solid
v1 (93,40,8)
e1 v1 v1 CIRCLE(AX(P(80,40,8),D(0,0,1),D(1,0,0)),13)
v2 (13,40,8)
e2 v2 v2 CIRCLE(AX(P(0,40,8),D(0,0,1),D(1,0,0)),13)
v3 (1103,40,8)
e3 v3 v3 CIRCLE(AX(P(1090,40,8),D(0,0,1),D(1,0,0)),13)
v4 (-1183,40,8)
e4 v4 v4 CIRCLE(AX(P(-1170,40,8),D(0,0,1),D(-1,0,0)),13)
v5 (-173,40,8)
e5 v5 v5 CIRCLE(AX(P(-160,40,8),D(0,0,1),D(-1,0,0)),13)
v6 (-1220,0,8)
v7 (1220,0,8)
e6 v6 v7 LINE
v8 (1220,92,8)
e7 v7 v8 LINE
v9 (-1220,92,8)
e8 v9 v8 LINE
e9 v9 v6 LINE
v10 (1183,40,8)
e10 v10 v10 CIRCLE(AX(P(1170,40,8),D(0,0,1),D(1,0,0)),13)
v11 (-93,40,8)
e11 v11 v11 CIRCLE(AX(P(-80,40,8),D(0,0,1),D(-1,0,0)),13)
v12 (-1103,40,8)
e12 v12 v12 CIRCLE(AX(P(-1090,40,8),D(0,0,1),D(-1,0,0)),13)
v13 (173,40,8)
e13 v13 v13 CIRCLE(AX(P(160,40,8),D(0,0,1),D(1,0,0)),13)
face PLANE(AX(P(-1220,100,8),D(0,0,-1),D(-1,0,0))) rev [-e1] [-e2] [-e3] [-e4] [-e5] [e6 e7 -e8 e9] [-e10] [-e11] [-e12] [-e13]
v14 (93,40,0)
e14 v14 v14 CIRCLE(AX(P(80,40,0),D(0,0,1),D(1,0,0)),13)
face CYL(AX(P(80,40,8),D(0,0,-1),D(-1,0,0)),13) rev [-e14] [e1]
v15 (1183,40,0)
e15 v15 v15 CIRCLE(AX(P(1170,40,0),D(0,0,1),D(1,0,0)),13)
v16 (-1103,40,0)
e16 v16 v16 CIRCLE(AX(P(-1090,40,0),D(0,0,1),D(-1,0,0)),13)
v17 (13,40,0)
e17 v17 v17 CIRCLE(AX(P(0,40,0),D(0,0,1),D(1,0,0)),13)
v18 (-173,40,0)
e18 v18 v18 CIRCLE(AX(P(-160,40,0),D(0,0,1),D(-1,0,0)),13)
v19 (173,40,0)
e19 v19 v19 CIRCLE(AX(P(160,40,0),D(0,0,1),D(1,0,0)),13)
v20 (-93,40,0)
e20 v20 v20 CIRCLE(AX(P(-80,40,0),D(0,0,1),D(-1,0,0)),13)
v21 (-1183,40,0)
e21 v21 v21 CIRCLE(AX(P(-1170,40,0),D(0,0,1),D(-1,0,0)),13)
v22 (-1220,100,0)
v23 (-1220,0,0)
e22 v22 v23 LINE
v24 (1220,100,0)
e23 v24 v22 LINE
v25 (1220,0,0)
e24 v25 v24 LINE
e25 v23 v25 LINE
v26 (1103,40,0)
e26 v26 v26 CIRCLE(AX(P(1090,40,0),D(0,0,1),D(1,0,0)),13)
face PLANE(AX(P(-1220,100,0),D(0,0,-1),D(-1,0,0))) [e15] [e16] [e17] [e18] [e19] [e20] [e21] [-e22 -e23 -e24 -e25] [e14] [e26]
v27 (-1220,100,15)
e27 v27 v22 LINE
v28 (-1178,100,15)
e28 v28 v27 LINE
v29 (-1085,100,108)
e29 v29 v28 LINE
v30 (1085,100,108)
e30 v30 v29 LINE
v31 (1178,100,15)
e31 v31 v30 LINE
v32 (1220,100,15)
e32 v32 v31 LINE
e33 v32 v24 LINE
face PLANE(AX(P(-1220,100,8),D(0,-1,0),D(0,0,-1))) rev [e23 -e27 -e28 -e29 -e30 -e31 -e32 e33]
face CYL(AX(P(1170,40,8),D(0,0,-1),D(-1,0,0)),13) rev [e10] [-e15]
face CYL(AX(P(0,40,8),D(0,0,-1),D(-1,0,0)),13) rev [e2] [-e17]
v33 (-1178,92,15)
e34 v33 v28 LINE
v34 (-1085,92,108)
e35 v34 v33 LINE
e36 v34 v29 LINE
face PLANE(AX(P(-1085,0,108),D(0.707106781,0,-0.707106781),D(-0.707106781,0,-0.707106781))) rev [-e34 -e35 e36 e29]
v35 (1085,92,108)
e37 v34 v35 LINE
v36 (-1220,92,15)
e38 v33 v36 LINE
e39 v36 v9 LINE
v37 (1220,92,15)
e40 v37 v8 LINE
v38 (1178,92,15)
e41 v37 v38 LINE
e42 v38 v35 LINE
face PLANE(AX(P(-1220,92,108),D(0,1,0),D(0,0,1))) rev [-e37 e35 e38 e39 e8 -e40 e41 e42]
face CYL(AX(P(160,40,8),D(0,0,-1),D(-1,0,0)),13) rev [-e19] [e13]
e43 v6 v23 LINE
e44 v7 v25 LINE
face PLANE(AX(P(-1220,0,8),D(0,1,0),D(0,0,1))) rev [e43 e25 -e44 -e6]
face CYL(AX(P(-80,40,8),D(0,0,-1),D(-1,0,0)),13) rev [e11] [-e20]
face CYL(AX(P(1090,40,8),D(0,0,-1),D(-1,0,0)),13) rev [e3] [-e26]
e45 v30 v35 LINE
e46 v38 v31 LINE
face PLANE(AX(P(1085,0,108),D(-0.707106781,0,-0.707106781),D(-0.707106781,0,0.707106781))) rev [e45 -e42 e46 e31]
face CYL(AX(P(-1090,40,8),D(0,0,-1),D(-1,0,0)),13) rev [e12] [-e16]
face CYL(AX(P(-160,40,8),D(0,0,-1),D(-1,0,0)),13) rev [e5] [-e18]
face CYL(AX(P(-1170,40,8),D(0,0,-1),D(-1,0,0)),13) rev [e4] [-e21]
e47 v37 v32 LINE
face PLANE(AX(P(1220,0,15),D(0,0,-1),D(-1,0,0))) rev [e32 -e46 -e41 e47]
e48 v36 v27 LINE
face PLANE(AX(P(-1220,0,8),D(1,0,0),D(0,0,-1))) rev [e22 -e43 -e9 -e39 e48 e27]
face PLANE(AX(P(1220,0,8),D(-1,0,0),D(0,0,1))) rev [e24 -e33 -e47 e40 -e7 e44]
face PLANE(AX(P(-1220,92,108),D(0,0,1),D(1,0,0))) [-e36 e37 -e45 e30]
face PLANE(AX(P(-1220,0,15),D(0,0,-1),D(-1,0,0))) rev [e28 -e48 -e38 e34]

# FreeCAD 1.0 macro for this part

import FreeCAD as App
import Part
import Sketcher

V = App.Vector

doc = App.newDocument("Part")
params = doc.addObject("Spreadsheet::Sheet", "Params")
for row, (alias, value) in enumerate([
    ("sketch1_diameter", "26 mm"),
    ("sketch1_width", "2440 mm"),
    ("sketch1_height", "100 mm"),
    ("pad1_length", "8 mm"),
    ("sketch2_width", "2440 mm"),
    ("sketch2_height", "8 mm"),
    ("pad2_length", "100 mm"),
    ("sketch3_width", "135 mm"),
    ("sketch3_width2", "42 mm"),
], start=1):
    params.set(f"A{row}", alias)
    params.set(f"B{row}", "=" + value)
    params.setAlias(f"B{row}", alias)

body = doc.addObject("PartDesign::Body", "Body")

# Sketch on XY plane
sketch1 = doc.addObject("Sketcher::SketchObject", "Sketch")
body.addObject(sketch1)
sketch1.AttachmentSupport = (doc.XY_Plane, [""])
sketch1.MapMode = "FlatFace"
sketch1.addGeometry([
    Part.LineSegment(V(-1220, 100, 0), V(-1220, 0, 0)),  # 0
    Part.LineSegment(V(-1220, 0, 0), V(1220, 0, 0)),  # 1
    Part.LineSegment(V(1220, 0, 0), V(1220, 100, 0)),  # 2
    Part.LineSegment(V(1220, 100, 0), V(-1220, 100, 0)),  # 3
    Part.Circle(V(-1170, 40, 0), V(0, 0, 1), 13),  # 4
    Part.Circle(V(-1090, 40, 0), V(0, 0, 1), 13),  # 5
    Part.Circle(V(-160, 40, 0), V(0, 0, 1), 13),  # 6
    Part.Circle(V(-80, 40, 0), V(0, 0, 1), 13),  # 7
    Part.Circle(V(0, 40, 0), V(0, 0, 1), 13),  # 8
    Part.Circle(V(80, 40, 0), V(0, 0, 1), 13),  # 9
    Part.Circle(V(160, 40, 0), V(0, 0, 1), 13),  # 10
    Part.Circle(V(1090, 40, 0), V(0, 0, 1), 13),  # 11
    Part.Circle(V(1170, 40, 0), V(0, 0, 1), 13),  # 12
], False)
sketch1.addConstraint([
    Sketcher.Constraint("Coincident", 0, 2, 1, 1),
    Sketcher.Constraint("Coincident", 1, 2, 2, 1),
    Sketcher.Constraint("Coincident", 2, 2, 3, 1),
    Sketcher.Constraint("Coincident", 3, 2, 0, 1),
    Sketcher.Constraint("Vertical", 0),
    Sketcher.Constraint("Horizontal", 1),
    Sketcher.Constraint("Vertical", 2),
    Sketcher.Constraint("Horizontal", 3),
    Sketcher.Constraint("Equal", 4, 5),
    Sketcher.Constraint("Equal", 5, 6),
    Sketcher.Constraint("Equal", 6, 7),
    Sketcher.Constraint("Equal", 7, 8),
    Sketcher.Constraint("Equal", 8, 9),
    Sketcher.Constraint("Equal", 9, 10),
    Sketcher.Constraint("Equal", 10, 11),
    Sketcher.Constraint("Equal", 11, 12),
    Sketcher.Constraint("Symmetric", 0, 2, 1, 2, -1, 1),
    Sketcher.Constraint("Symmetric", 7, 3, 9, 3, -2),
    Sketcher.Constraint("Symmetric", 6, 3, 10, 3, -2),
    Sketcher.Constraint("Symmetric", 5, 3, 11, 3, -2),
    Sketcher.Constraint("Symmetric", 4, 3, 12, 3, -2),
    Sketcher.Constraint("PointOnObject", 8, 3, -2),
    Sketcher.Constraint("Horizontal", 4, 3, 5, 3),
    Sketcher.Constraint("Horizontal", 5, 3, 6, 3),
    Sketcher.Constraint("Horizontal", 6, 3, 7, 3),
    Sketcher.Constraint("Horizontal", 7, 3, 8, 3),
    Sketcher.Constraint("Diameter", 4, 26.0),
    Sketcher.Constraint("DistanceX", 1, 1, 1, 2, 2440.0),
    Sketcher.Constraint("DistanceY", 0, 2, 0, 1, 100.0),
    Sketcher.Constraint("DistanceX", 4, 3, -1, 1, 1170.0),
    Sketcher.Constraint("DistanceY", -1, 1, 4, 3, 40.0),
    Sketcher.Constraint("DistanceX", 5, 3, -1, 1, 1090.0),
    Sketcher.Constraint("DistanceX", 6, 3, -1, 1, 160.0),
    Sketcher.Constraint("DistanceX", 7, 3, -1, 1, 80.0),
])
sketch1.setExpression("Constraints[26]", "Params.sketch1_diameter")
sketch1.setExpression("Constraints[27]", "Params.sketch1_width")
sketch1.setExpression("Constraints[28]", "Params.sketch1_height")
pad1 = doc.addObject("PartDesign::Pad", "Pad")
body.addObject(pad1)
pad1.Profile = sketch1
pad1.setExpression("Length", "Params.pad1_length")

# Sketch on XY plane
sketch2 = doc.addObject("Sketcher::SketchObject", "Sketch001")
body.addObject(sketch2)
sketch2.AttachmentSupport = (doc.XY_Plane, [""])
sketch2.MapMode = "FlatFace"
sketch2.AttachmentOffset = App.Placement(V(0, 0, 8), App.Rotation())
sketch2.addGeometry([
    Part.LineSegment(V(-1220, 100, 0), V(-1220, 92, 0)),
    Part.LineSegment(V(-1220, 92, 0), V(1220, 92, 0)),
    Part.LineSegment(V(1220, 92, 0), V(1220, 100, 0)),
    Part.LineSegment(V(1220, 100, 0), V(-1220, 100, 0)),
], False)
sketch2.addConstraint([
    Sketcher.Constraint("Coincident", 0, 2, 1, 1),
    Sketcher.Constraint("Coincident", 1, 2, 2, 1),
    Sketcher.Constraint("Coincident", 2, 2, 3, 1),
    Sketcher.Constraint("Coincident", 3, 2, 0, 1),
    Sketcher.Constraint("Vertical", 0),
    Sketcher.Constraint("Horizontal", 1),
    Sketcher.Constraint("Vertical", 2),
    Sketcher.Constraint("Horizontal", 3),
    Sketcher.Constraint("DistanceX", 1, 1, 1, 2, 2440.0),
    Sketcher.Constraint("DistanceY", 0, 2, 0, 1, 8.0),
    Sketcher.Constraint("DistanceX", 0, 2, -1, 1, 1220.0),
    Sketcher.Constraint("DistanceY", -1, 1, 0, 2, 92.0),
])
sketch2.setExpression("Constraints[8]", "Params.sketch2_width")
sketch2.setExpression("Constraints[9]", "Params.sketch2_height")
pad2 = doc.addObject("PartDesign::Pad", "Pad001")
body.addObject(pad2)
pad2.Profile = sketch2
pad2.setExpression("Length", "Params.pad2_length")

# Sketch on XZ plane
sketch3 = doc.addObject("Sketcher::SketchObject", "Sketch002")
body.addObject(sketch3)
sketch3.AttachmentSupport = (doc.XZ_Plane, [""])
sketch3.MapMode = "FlatFace"
sketch3.AttachmentOffset = App.Placement(V(0, 0, -100), App.Rotation())
sketch3.addGeometry([
    Part.LineSegment(V(1178, 15, 0), V(1085, 108, 0)),  # 0
    Part.LineSegment(V(1085, 108, 0), V(1220, 108, 0)),  # 1
    Part.LineSegment(V(1220, 108, 0), V(1220, 15, 0)),  # 2
    Part.LineSegment(V(1220, 15, 0), V(1178, 15, 0)),  # 3
    Part.LineSegment(V(-1178, 15, 0), V(-1220, 15, 0)),  # 4
    Part.LineSegment(V(-1220, 15, 0), V(-1220, 108, 0)),  # 5
    Part.LineSegment(V(-1220, 108, 0), V(-1085, 108, 0)),  # 6
    Part.LineSegment(V(-1085, 108, 0), V(-1178, 15, 0)),  # 7
], False)
sketch3.addConstraint([
    Sketcher.Constraint("Coincident", 0, 2, 1, 1),
    Sketcher.Constraint("Coincident", 1, 2, 2, 1),
    Sketcher.Constraint("Coincident", 2, 2, 3, 1),
    Sketcher.Constraint("Coincident", 3, 2, 0, 1),
    Sketcher.Constraint("Coincident", 4, 2, 5, 1),
    Sketcher.Constraint("Coincident", 5, 2, 6, 1),
    Sketcher.Constraint("Coincident", 6, 2, 7, 1),
    Sketcher.Constraint("Coincident", 7, 2, 4, 1),
    Sketcher.Constraint("Horizontal", 1),
    Sketcher.Constraint("Vertical", 2),
    Sketcher.Constraint("Horizontal", 3),
    Sketcher.Constraint("Horizontal", 4),
    Sketcher.Constraint("Vertical", 5),
    Sketcher.Constraint("Horizontal", 6),
    Sketcher.Constraint("Symmetric", 2, 2, 4, 2, -2),
    Sketcher.Constraint("Symmetric", 0, 2, 6, 2, -2),
    Sketcher.Constraint("Perpendicular", 0, 7),
    Sketcher.Constraint("Equal", 3, 4),
    Sketcher.Constraint("DistanceX", 1, 1, 1, 2, 135.0),
    Sketcher.Constraint("DistanceX", 3, 2, 3, 1, 42.0),
    Sketcher.Constraint("DistanceX", -1, 1, 0, 2, 1085.0),
    Sketcher.Constraint("DistanceY", -1, 1, 0, 2, 108.0),
])
sketch3.setExpression("Constraints[18]", "Params.sketch3_width")
sketch3.setExpression("Constraints[19]", "Params.sketch3_width2")
pocket1 = doc.addObject("PartDesign::Pocket", "Pocket")
body.addObject(pocket1)
pocket1.Profile = sketch3
pocket1.Type = "ThroughAll"
pocket1.Reversed = True

doc.recompute()
